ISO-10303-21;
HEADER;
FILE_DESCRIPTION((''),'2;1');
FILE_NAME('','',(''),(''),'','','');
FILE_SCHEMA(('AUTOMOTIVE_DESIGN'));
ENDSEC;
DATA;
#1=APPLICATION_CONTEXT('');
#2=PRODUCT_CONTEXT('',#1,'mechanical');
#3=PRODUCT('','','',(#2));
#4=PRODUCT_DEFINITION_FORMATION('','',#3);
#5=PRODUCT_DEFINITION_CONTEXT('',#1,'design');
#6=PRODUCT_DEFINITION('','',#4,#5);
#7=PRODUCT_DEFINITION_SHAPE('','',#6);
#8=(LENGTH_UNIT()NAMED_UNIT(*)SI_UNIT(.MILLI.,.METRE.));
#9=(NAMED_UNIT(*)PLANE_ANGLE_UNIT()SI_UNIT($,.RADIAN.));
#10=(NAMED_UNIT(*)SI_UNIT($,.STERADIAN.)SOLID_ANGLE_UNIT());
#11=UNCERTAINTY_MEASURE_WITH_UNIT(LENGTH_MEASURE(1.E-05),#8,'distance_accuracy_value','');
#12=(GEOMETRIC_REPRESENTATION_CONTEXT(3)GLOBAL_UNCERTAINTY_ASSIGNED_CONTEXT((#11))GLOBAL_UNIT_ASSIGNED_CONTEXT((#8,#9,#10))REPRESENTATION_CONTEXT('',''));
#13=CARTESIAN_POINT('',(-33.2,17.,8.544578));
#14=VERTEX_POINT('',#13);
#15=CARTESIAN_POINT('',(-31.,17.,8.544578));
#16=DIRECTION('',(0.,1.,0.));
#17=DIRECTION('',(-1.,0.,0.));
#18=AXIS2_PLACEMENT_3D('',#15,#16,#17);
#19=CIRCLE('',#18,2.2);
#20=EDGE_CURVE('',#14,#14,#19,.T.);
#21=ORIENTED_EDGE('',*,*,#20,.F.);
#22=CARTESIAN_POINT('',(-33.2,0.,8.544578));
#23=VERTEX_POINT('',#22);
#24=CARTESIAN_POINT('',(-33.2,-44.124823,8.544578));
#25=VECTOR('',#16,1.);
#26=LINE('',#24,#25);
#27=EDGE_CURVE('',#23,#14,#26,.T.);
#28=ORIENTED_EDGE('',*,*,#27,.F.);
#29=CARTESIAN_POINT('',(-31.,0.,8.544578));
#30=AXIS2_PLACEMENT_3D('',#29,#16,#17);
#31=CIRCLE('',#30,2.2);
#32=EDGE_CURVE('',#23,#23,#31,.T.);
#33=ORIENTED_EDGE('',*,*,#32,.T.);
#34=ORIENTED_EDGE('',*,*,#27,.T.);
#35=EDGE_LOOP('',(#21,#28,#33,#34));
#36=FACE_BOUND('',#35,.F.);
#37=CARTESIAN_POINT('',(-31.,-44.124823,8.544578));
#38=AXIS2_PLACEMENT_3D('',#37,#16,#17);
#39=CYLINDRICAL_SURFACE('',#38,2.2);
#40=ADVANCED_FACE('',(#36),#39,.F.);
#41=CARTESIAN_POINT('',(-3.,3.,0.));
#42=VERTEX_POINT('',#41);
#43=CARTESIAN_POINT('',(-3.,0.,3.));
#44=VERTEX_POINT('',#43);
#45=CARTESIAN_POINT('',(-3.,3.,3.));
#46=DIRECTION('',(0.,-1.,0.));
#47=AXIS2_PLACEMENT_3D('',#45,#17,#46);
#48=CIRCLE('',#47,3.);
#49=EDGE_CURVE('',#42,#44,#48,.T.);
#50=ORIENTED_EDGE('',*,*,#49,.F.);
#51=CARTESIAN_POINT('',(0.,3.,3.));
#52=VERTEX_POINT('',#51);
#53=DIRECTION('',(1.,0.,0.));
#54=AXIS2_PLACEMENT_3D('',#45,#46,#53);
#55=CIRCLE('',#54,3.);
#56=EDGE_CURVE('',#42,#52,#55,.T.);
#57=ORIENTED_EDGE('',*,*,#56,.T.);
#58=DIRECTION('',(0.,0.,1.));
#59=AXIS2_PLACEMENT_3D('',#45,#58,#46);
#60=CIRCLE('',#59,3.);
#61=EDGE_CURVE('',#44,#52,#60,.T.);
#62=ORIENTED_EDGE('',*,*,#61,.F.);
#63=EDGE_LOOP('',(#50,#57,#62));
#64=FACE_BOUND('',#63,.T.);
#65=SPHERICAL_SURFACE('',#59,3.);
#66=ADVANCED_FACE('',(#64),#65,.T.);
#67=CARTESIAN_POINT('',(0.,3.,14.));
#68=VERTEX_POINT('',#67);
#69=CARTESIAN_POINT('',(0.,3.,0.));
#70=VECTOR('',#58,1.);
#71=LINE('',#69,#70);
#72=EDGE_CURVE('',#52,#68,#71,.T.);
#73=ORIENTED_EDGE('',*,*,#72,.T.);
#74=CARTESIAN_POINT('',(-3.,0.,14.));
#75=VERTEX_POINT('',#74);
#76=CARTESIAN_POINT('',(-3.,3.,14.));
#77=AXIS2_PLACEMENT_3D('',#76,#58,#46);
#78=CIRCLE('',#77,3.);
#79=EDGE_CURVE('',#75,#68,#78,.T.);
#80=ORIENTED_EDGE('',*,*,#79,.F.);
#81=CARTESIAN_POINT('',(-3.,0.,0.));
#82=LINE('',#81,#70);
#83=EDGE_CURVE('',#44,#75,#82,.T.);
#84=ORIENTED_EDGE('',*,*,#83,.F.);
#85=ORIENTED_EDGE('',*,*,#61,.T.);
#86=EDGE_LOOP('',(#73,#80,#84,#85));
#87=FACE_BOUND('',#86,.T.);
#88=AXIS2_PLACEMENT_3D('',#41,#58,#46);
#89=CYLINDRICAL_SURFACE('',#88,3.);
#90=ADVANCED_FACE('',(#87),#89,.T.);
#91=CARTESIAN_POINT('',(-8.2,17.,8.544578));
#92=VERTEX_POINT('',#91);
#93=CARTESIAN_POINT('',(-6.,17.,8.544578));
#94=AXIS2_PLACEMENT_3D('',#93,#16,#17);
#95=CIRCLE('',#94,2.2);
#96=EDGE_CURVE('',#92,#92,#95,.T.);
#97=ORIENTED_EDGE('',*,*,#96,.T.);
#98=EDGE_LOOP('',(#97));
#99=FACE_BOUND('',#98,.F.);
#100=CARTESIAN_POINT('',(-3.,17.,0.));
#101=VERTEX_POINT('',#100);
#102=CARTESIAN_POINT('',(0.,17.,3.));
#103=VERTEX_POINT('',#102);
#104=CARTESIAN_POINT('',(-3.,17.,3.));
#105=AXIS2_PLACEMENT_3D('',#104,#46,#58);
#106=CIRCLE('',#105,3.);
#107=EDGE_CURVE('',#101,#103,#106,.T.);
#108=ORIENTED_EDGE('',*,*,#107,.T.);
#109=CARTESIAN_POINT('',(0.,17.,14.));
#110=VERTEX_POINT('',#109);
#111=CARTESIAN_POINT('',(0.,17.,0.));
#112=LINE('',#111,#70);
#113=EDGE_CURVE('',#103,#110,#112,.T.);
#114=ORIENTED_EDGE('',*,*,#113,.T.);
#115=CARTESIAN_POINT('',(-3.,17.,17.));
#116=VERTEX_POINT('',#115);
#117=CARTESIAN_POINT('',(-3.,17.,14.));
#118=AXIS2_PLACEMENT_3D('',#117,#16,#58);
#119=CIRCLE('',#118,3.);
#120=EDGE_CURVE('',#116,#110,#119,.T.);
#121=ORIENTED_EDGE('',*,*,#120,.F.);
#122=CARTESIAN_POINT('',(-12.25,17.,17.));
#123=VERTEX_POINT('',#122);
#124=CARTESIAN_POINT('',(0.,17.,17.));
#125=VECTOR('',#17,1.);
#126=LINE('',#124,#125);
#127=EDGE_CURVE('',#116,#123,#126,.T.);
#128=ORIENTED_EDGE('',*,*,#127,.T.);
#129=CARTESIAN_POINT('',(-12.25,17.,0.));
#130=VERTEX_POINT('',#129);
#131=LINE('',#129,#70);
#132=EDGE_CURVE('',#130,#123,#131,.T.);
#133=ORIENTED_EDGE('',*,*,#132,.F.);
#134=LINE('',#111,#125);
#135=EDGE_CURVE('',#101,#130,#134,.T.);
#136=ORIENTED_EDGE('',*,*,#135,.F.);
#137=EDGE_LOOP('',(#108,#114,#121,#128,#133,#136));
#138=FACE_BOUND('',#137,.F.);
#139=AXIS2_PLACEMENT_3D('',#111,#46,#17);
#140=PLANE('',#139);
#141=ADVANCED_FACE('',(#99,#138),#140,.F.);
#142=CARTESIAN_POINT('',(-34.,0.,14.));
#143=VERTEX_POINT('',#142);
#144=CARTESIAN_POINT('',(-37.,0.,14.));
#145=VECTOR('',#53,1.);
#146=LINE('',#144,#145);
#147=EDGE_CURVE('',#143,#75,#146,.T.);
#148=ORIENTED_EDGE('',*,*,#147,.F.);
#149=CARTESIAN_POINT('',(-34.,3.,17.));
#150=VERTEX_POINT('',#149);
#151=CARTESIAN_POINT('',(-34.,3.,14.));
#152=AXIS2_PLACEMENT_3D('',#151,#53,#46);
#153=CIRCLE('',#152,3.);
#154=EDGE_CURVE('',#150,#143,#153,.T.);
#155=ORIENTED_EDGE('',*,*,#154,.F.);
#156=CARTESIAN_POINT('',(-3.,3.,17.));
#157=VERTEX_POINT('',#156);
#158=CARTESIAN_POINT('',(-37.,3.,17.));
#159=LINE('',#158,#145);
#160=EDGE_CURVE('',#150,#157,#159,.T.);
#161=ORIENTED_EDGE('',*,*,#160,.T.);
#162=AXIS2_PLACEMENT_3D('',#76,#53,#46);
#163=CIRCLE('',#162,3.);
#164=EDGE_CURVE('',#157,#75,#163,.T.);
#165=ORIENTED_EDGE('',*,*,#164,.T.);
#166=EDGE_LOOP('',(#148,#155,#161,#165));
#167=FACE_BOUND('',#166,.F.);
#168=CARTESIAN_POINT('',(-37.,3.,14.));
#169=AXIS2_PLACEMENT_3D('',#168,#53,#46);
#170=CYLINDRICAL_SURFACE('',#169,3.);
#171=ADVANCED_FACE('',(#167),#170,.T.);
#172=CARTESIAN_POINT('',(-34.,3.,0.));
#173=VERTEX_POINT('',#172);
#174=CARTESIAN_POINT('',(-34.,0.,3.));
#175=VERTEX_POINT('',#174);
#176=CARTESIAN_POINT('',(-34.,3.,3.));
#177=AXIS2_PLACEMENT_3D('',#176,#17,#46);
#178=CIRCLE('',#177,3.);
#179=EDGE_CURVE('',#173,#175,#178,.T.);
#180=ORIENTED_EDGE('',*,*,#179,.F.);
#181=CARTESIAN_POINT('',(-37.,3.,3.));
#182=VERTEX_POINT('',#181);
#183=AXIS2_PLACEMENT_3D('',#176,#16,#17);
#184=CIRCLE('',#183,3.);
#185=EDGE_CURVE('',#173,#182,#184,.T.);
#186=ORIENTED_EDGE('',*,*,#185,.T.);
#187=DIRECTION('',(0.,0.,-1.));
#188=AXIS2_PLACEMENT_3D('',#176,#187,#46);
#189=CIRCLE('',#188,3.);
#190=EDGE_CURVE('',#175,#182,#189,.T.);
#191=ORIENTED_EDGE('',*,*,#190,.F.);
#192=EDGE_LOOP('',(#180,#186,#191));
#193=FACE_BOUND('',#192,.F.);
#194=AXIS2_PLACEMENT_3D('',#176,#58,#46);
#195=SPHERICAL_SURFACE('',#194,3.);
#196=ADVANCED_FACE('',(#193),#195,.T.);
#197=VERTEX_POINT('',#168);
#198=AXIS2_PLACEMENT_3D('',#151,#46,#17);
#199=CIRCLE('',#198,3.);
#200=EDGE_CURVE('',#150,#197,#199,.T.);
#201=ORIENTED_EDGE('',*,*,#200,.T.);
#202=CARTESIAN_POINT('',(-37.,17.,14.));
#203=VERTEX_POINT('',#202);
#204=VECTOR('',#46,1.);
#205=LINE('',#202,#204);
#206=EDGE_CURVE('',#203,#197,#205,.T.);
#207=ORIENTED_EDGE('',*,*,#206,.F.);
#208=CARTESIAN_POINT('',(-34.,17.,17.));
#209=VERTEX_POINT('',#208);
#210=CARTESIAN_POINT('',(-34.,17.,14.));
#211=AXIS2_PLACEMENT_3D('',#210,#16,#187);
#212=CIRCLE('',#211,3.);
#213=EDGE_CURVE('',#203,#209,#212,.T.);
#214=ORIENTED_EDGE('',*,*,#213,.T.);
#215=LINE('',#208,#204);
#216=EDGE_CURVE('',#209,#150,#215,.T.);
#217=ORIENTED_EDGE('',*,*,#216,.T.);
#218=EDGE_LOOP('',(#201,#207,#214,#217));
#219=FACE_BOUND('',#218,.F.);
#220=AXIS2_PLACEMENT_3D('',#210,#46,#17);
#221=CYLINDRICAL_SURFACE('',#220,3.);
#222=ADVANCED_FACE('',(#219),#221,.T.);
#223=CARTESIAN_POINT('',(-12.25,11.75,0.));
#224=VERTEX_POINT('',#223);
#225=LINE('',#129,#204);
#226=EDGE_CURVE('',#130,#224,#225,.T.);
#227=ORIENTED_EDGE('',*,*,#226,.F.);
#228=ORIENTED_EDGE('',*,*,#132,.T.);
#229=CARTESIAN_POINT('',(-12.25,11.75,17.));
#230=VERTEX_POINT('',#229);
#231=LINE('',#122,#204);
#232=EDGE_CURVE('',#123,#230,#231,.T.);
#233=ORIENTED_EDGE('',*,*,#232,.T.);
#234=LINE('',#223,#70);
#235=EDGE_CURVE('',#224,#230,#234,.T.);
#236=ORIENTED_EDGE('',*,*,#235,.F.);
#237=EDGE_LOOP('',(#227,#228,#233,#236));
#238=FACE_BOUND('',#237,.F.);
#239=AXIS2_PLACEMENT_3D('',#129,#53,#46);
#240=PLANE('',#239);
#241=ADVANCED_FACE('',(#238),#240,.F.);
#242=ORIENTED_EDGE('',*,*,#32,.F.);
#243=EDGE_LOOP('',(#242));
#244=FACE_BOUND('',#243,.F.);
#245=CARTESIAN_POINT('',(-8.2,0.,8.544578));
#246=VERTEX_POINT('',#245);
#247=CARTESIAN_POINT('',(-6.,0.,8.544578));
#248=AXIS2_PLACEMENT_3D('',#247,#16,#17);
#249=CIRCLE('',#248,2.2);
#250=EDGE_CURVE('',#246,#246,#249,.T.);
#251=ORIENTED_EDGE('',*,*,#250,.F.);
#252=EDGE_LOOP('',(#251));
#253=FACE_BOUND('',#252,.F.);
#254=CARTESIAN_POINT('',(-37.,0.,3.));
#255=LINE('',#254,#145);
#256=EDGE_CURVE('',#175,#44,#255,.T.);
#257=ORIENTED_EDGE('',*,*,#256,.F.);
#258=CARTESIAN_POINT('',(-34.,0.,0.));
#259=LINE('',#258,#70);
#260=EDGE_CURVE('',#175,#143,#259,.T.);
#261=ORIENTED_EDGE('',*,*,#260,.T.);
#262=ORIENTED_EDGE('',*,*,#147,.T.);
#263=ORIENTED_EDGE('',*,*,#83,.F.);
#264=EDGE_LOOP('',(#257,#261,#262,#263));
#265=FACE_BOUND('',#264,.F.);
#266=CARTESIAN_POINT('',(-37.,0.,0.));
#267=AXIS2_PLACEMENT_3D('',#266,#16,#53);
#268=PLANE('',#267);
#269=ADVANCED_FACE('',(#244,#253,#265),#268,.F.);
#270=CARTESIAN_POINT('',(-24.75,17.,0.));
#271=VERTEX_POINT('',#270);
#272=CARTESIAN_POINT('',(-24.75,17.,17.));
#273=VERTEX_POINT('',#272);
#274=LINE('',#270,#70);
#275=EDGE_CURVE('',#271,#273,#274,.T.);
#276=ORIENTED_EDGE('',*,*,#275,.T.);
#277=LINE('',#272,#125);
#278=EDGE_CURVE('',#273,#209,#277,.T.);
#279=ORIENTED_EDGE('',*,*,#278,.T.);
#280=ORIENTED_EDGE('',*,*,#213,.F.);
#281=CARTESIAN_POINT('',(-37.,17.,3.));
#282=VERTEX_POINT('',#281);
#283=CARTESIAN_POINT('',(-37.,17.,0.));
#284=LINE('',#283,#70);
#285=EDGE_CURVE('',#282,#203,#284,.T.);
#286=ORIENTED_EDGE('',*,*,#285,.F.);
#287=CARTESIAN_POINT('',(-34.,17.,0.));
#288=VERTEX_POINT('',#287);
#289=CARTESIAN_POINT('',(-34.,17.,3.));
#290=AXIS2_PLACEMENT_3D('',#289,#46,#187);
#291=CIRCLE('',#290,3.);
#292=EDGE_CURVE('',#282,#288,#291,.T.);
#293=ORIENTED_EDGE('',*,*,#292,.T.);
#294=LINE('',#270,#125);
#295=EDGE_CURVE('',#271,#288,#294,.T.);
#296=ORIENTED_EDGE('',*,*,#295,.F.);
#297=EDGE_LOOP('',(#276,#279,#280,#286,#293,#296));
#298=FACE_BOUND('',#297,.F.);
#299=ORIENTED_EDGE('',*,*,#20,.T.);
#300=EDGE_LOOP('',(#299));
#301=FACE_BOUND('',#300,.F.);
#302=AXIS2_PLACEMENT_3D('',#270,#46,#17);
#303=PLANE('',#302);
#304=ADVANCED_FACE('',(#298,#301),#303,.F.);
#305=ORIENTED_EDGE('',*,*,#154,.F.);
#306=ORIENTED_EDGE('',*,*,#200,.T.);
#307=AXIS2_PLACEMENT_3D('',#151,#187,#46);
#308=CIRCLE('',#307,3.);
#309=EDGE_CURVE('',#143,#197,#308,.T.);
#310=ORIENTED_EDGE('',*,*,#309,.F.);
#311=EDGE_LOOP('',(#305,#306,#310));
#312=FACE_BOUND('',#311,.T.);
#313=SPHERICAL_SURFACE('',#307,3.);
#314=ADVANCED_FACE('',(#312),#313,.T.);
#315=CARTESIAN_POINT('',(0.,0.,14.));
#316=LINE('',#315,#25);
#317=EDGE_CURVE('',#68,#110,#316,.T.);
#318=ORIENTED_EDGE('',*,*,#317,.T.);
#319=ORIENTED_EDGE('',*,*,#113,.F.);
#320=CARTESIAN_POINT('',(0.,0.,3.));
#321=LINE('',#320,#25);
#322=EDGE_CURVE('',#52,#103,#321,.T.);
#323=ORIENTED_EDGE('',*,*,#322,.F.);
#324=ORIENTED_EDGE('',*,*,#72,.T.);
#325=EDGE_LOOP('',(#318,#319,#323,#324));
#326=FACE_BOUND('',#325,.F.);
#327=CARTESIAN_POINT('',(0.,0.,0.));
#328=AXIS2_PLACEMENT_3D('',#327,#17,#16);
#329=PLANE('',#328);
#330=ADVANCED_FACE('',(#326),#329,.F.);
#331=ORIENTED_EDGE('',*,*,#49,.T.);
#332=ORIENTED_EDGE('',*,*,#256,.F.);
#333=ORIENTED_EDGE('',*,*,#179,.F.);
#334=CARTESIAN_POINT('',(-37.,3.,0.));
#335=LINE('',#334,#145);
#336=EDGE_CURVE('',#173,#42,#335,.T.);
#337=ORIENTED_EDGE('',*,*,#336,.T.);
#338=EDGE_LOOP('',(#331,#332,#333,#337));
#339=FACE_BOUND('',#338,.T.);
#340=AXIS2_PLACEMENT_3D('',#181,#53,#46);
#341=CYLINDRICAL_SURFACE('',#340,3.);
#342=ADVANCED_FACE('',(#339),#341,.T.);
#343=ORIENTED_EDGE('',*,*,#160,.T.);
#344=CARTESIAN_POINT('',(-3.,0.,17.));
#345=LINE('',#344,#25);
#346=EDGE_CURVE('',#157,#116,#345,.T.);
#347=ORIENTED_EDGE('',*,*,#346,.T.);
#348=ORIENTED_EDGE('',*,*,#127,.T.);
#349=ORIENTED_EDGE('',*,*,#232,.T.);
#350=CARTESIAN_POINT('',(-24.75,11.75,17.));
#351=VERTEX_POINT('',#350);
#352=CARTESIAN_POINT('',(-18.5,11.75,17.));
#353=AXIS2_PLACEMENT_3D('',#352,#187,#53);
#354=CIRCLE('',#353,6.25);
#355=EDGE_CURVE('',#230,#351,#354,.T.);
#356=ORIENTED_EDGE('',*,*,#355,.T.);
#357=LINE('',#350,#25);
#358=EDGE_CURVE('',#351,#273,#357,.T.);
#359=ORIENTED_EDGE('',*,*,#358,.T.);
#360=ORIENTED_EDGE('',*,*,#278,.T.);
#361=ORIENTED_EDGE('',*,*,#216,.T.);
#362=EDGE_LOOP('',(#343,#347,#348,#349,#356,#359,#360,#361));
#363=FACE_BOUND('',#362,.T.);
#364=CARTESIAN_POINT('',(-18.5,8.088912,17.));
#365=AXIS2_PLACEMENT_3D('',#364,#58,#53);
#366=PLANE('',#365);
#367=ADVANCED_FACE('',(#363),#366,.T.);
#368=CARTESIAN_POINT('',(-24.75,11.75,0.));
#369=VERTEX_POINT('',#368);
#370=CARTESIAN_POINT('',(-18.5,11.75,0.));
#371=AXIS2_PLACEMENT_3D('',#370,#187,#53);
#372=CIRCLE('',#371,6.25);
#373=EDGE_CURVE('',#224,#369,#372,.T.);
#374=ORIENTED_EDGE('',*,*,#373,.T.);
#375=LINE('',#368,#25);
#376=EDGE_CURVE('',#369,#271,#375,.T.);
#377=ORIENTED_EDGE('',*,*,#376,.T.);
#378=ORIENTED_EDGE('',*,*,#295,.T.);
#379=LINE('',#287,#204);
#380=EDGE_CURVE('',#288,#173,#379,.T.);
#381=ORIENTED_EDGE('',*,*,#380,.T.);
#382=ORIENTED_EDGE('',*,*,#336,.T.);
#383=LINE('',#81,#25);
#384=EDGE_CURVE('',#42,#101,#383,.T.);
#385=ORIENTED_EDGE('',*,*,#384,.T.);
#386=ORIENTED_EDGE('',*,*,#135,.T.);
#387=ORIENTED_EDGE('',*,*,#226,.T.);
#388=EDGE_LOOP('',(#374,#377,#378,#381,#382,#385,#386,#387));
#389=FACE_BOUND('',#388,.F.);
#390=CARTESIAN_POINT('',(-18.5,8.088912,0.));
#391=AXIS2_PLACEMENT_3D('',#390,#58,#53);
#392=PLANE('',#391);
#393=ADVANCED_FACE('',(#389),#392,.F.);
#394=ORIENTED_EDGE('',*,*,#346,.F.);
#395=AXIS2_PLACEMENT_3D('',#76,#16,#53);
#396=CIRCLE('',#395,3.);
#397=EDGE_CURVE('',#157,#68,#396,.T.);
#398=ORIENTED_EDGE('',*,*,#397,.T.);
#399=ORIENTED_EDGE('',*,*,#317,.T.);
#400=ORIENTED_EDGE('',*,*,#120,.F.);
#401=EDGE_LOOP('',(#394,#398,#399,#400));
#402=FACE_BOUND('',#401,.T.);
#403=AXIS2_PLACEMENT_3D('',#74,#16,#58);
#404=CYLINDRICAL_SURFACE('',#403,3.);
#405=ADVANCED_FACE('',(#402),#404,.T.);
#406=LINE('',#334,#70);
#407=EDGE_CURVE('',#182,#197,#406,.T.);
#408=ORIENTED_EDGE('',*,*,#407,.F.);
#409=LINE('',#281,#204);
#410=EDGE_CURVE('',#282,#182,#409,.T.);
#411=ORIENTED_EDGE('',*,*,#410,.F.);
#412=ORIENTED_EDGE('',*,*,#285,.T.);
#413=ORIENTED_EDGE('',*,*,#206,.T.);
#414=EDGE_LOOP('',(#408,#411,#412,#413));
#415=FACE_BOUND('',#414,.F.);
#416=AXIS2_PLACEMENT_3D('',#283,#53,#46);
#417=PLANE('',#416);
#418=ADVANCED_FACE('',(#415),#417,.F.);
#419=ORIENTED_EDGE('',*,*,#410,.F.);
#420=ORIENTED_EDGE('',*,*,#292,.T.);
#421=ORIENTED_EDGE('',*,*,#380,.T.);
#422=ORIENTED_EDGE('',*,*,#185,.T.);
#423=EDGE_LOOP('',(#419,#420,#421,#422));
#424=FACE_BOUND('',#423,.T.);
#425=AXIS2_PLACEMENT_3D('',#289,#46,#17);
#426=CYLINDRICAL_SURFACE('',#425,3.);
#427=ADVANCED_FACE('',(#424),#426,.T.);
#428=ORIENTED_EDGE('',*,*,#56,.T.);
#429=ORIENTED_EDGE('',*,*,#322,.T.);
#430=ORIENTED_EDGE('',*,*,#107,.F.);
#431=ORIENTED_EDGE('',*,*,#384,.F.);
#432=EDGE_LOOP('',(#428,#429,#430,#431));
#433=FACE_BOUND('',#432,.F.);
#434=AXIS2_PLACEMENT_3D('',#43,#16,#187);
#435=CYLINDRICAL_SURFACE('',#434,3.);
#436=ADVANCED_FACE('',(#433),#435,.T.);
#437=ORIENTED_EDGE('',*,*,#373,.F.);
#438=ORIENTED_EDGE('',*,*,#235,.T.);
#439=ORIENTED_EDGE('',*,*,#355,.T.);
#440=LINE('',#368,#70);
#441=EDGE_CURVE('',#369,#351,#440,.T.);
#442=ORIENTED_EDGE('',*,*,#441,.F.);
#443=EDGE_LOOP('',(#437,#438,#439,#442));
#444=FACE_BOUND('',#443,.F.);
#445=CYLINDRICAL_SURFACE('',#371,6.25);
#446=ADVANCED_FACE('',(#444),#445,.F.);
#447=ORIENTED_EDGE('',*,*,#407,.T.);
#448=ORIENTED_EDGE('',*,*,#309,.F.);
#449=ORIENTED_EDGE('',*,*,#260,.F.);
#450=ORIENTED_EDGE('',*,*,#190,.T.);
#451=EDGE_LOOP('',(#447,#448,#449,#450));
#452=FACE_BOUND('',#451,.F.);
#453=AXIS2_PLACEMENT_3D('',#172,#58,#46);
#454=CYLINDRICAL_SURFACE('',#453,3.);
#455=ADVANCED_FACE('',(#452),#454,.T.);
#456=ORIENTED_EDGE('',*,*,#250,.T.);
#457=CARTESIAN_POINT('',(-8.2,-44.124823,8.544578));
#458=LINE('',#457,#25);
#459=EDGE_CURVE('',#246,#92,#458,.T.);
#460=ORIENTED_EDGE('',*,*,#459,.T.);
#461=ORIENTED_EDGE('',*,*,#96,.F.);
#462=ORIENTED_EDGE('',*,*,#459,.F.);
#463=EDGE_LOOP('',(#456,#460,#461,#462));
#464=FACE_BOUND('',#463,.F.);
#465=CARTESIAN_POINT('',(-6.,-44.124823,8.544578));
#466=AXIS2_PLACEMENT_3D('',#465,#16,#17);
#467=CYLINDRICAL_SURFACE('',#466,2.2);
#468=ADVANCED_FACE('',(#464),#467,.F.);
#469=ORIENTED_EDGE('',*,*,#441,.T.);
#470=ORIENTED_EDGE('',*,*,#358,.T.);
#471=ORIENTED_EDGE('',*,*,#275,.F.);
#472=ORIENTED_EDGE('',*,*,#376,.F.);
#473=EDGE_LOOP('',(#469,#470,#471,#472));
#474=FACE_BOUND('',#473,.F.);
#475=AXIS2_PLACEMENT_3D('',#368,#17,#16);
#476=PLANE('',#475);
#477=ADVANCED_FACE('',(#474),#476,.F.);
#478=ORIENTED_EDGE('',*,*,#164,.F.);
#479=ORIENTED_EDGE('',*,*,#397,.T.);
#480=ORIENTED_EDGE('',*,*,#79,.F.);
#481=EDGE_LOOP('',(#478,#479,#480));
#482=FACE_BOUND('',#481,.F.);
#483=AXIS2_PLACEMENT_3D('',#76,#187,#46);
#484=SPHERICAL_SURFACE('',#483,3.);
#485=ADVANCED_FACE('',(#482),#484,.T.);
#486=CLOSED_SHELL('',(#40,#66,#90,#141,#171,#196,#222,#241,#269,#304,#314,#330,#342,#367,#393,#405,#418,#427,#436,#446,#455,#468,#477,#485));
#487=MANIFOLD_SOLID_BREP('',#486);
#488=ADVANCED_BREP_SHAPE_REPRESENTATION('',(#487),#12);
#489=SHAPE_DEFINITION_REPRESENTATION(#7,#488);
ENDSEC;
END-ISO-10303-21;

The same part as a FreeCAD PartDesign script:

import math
import FreeCAD as App
import Part
import Sketcher
Q = App.Units.Quantity


def edges_at(feature, points):
    """Names of the edges that pass closest to the given points."""
    edges = feature.Shape.Edges
    near = lambda p: min(range(len(edges)), key=lambda i: edges[i].distToShape(Part.Vertex(*p))[0])
    return sorted({f"Edge{near(p) + 1}" for p in points})

doc = App.newDocument("Part")
body = doc.addObject("PartDesign::Body", "Body")

sketch1 = body.newObject("Sketcher::SketchObject", "Sketch")
sketch1.AttachmentSupport = (doc.getObject("XY_Plane"), [""])
sketch1.MapMode = "FlatFace"
sketch1.addGeometry([
    Part.LineSegment(App.Vector(-37, 0, 0), App.Vector(0, 0, 0)),
    Part.LineSegment(App.Vector(0, 0, 0), App.Vector(0, 17, 0)),
    Part.LineSegment(App.Vector(0, 17, 0), App.Vector(-12.25, 17, 0)),
    Part.LineSegment(App.Vector(-12.25, 17, 0), App.Vector(-12.25, 11.75, 0)),
    Part.ArcOfCircle(Part.Circle(App.Vector(-18.5, 11.75, 0), App.Vector(0, 0, 1), 6.25), math.radians(180), math.radians(360)),
    Part.LineSegment(App.Vector(-24.75, 11.75, 0), App.Vector(-24.75, 17, 0)),
    Part.LineSegment(App.Vector(-24.75, 17, 0), App.Vector(-37, 17, 0)),
    Part.LineSegment(App.Vector(-37, 17, 0), App.Vector(-37, 0, 0)),
], False)
sketch1.addConstraint([
    Sketcher.Constraint("Coincident", 0, 2, 1, 1),
    Sketcher.Constraint("Coincident", 1, 2, 2, 1),
    Sketcher.Constraint("Coincident", 2, 2, 3, 1),
    Sketcher.Constraint("Tangent", 3, 2, 4, 2),
    Sketcher.Constraint("Tangent", 4, 1, 5, 1),
    Sketcher.Constraint("Coincident", 5, 2, 6, 1),
    Sketcher.Constraint("Coincident", 6, 2, 7, 1),
    Sketcher.Constraint("Coincident", 7, 2, 0, 1),
    Sketcher.Constraint("Horizontal", 0),
    Sketcher.Constraint("Vertical", 1),
    Sketcher.Constraint("Horizontal", 2),
    Sketcher.Constraint("Vertical", 3),
    Sketcher.Constraint("Vertical", 5),
    Sketcher.Constraint("Horizontal", 6),
    Sketcher.Constraint("Vertical", 7),
    Sketcher.Constraint("Coincident", 0, 2, -1, 1),
    Sketcher.Constraint("Horizontal", 2, 2, 5, 2),
    Sketcher.Constraint("Equal", 2, 6),
    Sketcher.Constraint("DistanceX", 0, 1, 0, 2, Q("37 mm")),
    Sketcher.Constraint("DistanceY", 1, 1, 1, 2, Q("17 mm")),
    Sketcher.Constraint("Radius", 4, Q("6.25 mm")),
    Sketcher.Constraint("DistanceY", 3, 2, 3, 1, Q("5.25 mm")),
])
pad1 = body.newObject("PartDesign::Pad", "Pad")
pad1.Profile = sketch1
pad1.Length = 17

sketch2 = body.newObject("Sketcher::SketchObject", "Sketch001")
sketch2.AttachmentSupport = (doc.getObject("XZ_Plane"), [""])
sketch2.MapMode = "FlatFace"
sketch2.addGeometry([
    Part.Circle(App.Vector(-31, 8.544578, 0), App.Vector(0, 0, 1), 2.2),
    Part.Circle(App.Vector(-6, 8.544578, 0), App.Vector(0, 0, 1), 2.2),
], False)
sketch2.addConstraint([
    Sketcher.Constraint("Equal", 0, 1),
    Sketcher.Constraint("Horizontal", 0, 3, 1, 3),
    Sketcher.Constraint("Diameter", 0, Q("4.4 mm")),
    Sketcher.Constraint("DistanceX", 0, 3, -1, 1, Q("31 mm")),
    Sketcher.Constraint("DistanceX", 1, 3, -1, 1, Q("6 mm")),
    Sketcher.Constraint("DistanceY", -1, 1, 0, 3, Q("8.544578 mm")),
])
doc.recompute()
hole = body.newObject("PartDesign::Hole", "Hole")
hole.Profile = sketch2
hole.ThreadType = "None"
hole.Diameter = 4.4
hole.DepthType = "ThroughAll"
doc.recompute()

fillet = body.newObject("PartDesign::Fillet", "Fillet")
fillet.Base = (hole, edges_at(hole, [
    (-37, 0, 8.5),
    (0, 0, 8.5),
    (-18.5, 0, 17),
    (-18.5, 0, 0),
    (0, 8.5, 17),
    (0, 8.5, 0),
    (-37, 8.5, 17),
    (-37, 8.5, 0),
]))
fillet.Radius = 3

doc.recompute()
